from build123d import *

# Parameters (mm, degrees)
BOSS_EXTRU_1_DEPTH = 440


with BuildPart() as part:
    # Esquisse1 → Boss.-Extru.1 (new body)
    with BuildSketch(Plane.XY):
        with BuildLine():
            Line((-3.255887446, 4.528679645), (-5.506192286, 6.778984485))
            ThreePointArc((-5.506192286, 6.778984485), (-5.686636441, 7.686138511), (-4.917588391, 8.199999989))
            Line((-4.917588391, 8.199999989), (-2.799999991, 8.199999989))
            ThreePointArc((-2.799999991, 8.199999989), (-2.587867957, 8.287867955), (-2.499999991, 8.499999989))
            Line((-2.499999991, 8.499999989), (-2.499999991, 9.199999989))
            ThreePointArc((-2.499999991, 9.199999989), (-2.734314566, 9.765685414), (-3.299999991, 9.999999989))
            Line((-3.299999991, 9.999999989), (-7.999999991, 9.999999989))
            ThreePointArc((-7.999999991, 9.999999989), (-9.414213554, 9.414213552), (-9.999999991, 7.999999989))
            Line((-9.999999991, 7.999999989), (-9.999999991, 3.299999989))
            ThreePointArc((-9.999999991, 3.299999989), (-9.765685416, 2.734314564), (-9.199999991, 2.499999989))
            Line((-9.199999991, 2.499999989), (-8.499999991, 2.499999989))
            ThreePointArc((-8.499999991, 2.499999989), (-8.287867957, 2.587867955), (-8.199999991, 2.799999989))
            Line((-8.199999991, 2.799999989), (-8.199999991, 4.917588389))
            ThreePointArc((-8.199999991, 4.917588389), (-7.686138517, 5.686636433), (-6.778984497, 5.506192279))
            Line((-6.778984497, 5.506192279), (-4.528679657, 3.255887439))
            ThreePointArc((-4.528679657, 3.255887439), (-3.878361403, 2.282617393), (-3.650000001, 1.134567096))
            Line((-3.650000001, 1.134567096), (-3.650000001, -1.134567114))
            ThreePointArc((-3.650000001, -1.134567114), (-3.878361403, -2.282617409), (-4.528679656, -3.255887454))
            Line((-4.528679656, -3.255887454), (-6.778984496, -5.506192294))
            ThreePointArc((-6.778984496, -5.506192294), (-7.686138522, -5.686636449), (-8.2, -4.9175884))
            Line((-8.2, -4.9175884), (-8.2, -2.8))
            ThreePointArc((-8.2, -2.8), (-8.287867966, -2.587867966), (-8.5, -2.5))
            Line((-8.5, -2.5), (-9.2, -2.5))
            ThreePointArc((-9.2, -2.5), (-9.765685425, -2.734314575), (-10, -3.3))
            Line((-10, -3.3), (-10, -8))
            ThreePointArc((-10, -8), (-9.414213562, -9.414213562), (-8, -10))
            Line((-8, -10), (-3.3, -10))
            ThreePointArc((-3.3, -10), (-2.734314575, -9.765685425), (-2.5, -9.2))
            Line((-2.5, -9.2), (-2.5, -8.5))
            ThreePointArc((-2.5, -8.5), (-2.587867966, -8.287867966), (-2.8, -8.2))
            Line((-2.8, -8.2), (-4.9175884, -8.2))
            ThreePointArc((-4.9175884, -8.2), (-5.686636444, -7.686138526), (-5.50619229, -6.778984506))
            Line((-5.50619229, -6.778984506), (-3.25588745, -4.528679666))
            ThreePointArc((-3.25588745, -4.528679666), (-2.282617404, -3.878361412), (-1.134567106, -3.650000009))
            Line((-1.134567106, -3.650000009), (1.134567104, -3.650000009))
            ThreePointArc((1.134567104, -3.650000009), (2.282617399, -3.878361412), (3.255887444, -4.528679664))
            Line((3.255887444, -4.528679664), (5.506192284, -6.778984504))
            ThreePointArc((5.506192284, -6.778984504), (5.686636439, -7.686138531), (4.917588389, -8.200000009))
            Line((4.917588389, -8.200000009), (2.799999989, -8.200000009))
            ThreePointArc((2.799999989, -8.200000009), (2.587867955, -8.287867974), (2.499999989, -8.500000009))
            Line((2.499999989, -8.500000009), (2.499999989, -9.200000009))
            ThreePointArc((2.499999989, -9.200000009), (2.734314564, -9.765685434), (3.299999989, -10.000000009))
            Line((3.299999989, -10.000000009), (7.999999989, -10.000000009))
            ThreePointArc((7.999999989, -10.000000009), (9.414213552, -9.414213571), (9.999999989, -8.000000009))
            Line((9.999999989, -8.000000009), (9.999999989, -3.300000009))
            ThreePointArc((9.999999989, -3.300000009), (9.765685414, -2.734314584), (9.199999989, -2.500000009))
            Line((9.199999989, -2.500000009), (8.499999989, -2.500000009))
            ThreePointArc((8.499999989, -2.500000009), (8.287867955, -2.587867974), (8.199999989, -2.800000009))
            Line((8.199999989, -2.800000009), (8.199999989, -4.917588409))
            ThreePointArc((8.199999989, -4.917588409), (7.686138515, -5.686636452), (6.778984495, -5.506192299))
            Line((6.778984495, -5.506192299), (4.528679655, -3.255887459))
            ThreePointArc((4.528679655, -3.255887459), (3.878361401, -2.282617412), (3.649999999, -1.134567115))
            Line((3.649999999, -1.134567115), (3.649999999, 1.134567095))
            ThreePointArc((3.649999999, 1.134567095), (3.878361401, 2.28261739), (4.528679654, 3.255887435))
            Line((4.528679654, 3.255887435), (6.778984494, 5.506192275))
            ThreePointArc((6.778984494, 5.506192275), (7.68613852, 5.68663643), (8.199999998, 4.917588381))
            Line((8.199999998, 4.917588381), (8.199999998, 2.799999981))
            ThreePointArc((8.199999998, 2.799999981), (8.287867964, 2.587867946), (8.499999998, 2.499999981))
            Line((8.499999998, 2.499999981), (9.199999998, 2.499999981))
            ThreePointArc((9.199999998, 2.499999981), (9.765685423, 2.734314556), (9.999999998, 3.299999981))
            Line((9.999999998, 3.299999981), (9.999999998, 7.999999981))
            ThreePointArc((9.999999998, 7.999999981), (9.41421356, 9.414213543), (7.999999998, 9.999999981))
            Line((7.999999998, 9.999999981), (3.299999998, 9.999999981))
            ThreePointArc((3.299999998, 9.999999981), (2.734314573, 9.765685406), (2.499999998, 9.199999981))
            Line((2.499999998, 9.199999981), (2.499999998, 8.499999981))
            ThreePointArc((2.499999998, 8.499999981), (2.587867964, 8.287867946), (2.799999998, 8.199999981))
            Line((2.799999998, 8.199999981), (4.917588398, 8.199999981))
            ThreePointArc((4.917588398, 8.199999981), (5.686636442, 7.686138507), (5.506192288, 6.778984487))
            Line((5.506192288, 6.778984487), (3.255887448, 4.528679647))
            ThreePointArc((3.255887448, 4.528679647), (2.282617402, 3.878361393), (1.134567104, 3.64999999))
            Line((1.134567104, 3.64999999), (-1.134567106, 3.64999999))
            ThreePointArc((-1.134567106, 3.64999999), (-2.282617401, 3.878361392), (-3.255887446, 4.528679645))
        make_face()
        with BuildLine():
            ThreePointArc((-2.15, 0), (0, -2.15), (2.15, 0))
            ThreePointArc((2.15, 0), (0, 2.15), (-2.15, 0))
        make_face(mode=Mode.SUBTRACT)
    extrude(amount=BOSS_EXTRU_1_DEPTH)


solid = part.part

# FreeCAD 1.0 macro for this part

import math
import FreeCAD as App
import Part
import Sketcher

doc = App.newDocument("Part")
params = doc.addObject("Spreadsheet::Sheet", "Params")
for row, (alias, value) in enumerate([
    ("sketch1_radius", "2 mm"),
    ("sketch1_radius2", "3 mm"),
    ("sketch1_diameter", "4.3 mm"),
    ("sketch1_radius3", "0.3 mm"),
    ("sketch1_radius4", "0.8 mm"),
    ("pad1_length", "440 mm"),
], start=1):
    params.set(f"A{row}", alias)
    params.set(f"B{row}", "=" + value)
    params.setAlias(f"B{row}", alias)

body = doc.addObject("PartDesign::Body", "Body")

sketch1 = doc.addObject("Sketcher::SketchObject", "Sketch")
body.addObject(sketch1)
sketch1.AttachmentSupport = (doc.XY_Plane, [""])
sketch1.MapMode = "FlatFace"
sketch1.addGeometry([
    Part.LineSegment(App.Vector(-3.26, 4.53, 0), App.Vector(-5.51, 6.78, 0)),
    Part.ArcOfCircle(Part.Circle(App.Vector(-4.92, 7.37, 0), App.Vector(0, 0, 1), 0.83), math.radians(90), math.radians(225)),
    Part.LineSegment(App.Vector(-4.92, 8.2, 0), App.Vector(-2.8, 8.2, 0)),
    Part.ArcOfCircle(Part.Circle(App.Vector(-2.8, 8.5, 0), App.Vector(0, 0, 1), 0.3), math.radians(-90), math.radians(0)),
    Part.LineSegment(App.Vector(-2.5, 8.5, 0), App.Vector(-2.5, 9.2, 0)),
    Part.ArcOfCircle(Part.Circle(App.Vector(-3.3, 9.2, 0), App.Vector(0, 0, 1), 0.8), math.radians(0), math.radians(90)),
    Part.LineSegment(App.Vector(-3.3, 10, 0), App.Vector(-8, 10, 0)),
    Part.ArcOfCircle(Part.Circle(App.Vector(-8, 8, 0), App.Vector(0, 0, 1), 2), math.radians(90), math.radians(180)),
    Part.LineSegment(App.Vector(-10, 8, 0), App.Vector(-10, 3.3, 0)),
    Part.ArcOfCircle(Part.Circle(App.Vector(-9.2, 3.3, 0), App.Vector(0, 0, 1), 0.8), math.radians(180), math.radians(270)),
    Part.LineSegment(App.Vector(-9.2, 2.5, 0), App.Vector(-8.5, 2.5, 0)),
    Part.ArcOfCircle(Part.Circle(App.Vector(-8.5, 2.8, 0), App.Vector(0, 0, 1), 0.3), math.radians(-90), math.radians(0)),
    Part.LineSegment(App.Vector(-8.2, 2.8, 0), App.Vector(-8.2, 4.92, 0)),
    Part.ArcOfCircle(Part.Circle(App.Vector(-7.37, 4.92, 0), App.Vector(0, 0, 1), 0.83), math.radians(45), math.radians(180)),
    Part.LineSegment(App.Vector(-6.78, 5.51, 0), App.Vector(-4.53, 3.26, 0)),
    Part.ArcOfCircle(Part.Circle(App.Vector(-6.65, 1.13, 0), App.Vector(0, 0, 1), 3), math.radians(0), math.radians(45)),
    Part.LineSegment(App.Vector(-3.65, 1.13, 0), App.Vector(-3.65, -1.13, 0)),
    Part.ArcOfCircle(Part.Circle(App.Vector(-6.65, -1.13, 0), App.Vector(0, 0, 1), 3), math.radians(-45), math.radians(0)),
    Part.LineSegment(App.Vector(-4.53, -3.26, 0), App.Vector(-6.78, -5.51, 0)),
    Part.ArcOfCircle(Part.Circle(App.Vector(-7.37, -4.92, 0), App.Vector(0, 0, 1), 0.83), math.radians(180), math.radians(315)),
    Part.LineSegment(App.Vector(-8.2, -4.92, 0), App.Vector(-8.2, -2.8, 0)),
    Part.ArcOfCircle(Part.Circle(App.Vector(-8.5, -2.8, 0), App.Vector(0, 0, 1), 0.3), math.radians(0), math.radians(90)),
    Part.LineSegment(App.Vector(-8.5, -2.5, 0), App.Vector(-9.2, -2.5, 0)),
    Part.ArcOfCircle(Part.Circle(App.Vector(-9.2, -3.3, 0), App.Vector(0, 0, 1), 0.8), math.radians(90), math.radians(180)),
    Part.LineSegment(App.Vector(-10, -3.3, 0), App.Vector(-10, -8, 0)),
    Part.ArcOfCircle(Part.Circle(App.Vector(-8, -8, 0), App.Vector(0, 0, 1), 2), math.radians(-180), math.radians(-90)),
    Part.LineSegment(App.Vector(-8, -10, 0), App.Vector(-3.3, -10, 0)),
    Part.ArcOfCircle(Part.Circle(App.Vector(-3.3, -9.2, 0), App.Vector(0, 0, 1), 0.8), math.radians(-90), math.radians(0)),
    Part.LineSegment(App.Vector(-2.5, -9.2, 0), App.Vector(-2.5, -8.5, 0)),
    Part.ArcOfCircle(Part.Circle(App.Vector(-2.8, -8.5, 0), App.Vector(0, 0, 1), 0.3), math.radians(0), math.radians(90)),
    Part.LineSegment(App.Vector(-2.8, -8.2, 0), App.Vector(-4.92, -8.2, 0)),
    Part.ArcOfCircle(Part.Circle(App.Vector(-4.92, -7.37, 0), App.Vector(0, 0, 1), 0.83), math.radians(135), math.radians(270)),
    Part.LineSegment(App.Vector(-5.51, -6.78, 0), App.Vector(-3.26, -4.53, 0)),
    Part.ArcOfCircle(Part.Circle(App.Vector(-1.13, -6.65, 0), App.Vector(0, 0, 1), 3), math.radians(90), math.radians(135)),
    Part.LineSegment(App.Vector(-1.13, -3.65, 0), App.Vector(1.13, -3.65, 0)),
    Part.ArcOfCircle(Part.Circle(App.Vector(1.13, -6.65, 0), App.Vector(0, 0, 1), 3), math.radians(45), math.radians(90)),
    Part.LineSegment(App.Vector(3.26, -4.53, 0), App.Vector(5.51, -6.78, 0)),
    Part.ArcOfCircle(Part.Circle(App.Vector(4.92, -7.37, 0), App.Vector(0, 0, 1), 0.83), math.radians(-90), math.radians(45)),
    Part.LineSegment(App.Vector(4.92, -8.2, 0), App.Vector(2.8, -8.2, 0)),
    Part.ArcOfCircle(Part.Circle(App.Vector(2.8, -8.5, 0), App.Vector(0, 0, 1), 0.3), math.radians(90), math.radians(180)),
    Part.LineSegment(App.Vector(2.5, -8.5, 0), App.Vector(2.5, -9.2, 0)),
    Part.ArcOfCircle(Part.Circle(App.Vector(3.3, -9.2, 0), App.Vector(0, 0, 1), 0.8), math.radians(180), math.radians(270)),
    Part.LineSegment(App.Vector(3.3, -10, 0), App.Vector(8, -10, 0)),
    Part.ArcOfCircle(Part.Circle(App.Vector(8, -8, 0), App.Vector(0, 0, 1), 2), math.radians(-90), math.radians(0)),
    Part.LineSegment(App.Vector(10, -8, 0), App.Vector(10, -3.3, 0)),
    Part.ArcOfCircle(Part.Circle(App.Vector(9.2, -3.3, 0), App.Vector(0, 0, 1), 0.8), math.radians(0), math.radians(90)),
    Part.LineSegment(App.Vector(9.2, -2.5, 0), App.Vector(8.5, -2.5, 0)),
    Part.ArcOfCircle(Part.Circle(App.Vector(8.5, -2.8, 0), App.Vector(0, 0, 1), 0.3), math.radians(90), math.radians(180)),
    Part.LineSegment(App.Vector(8.2, -2.8, 0), App.Vector(8.2, -4.92, 0)),
    Part.ArcOfCircle(Part.Circle(App.Vector(7.37, -4.92, 0), App.Vector(0, 0, 1), 0.83), math.radians(-135), math.radians(0)),
    Part.LineSegment(App.Vector(6.78, -5.51, 0), App.Vector(4.53, -3.26, 0)),
    Part.ArcOfCircle(Part.Circle(App.Vector(6.65, -1.13, 0), App.Vector(0, 0, 1), 3), math.radians(180), math.radians(225)),
    Part.LineSegment(App.Vector(3.65, -1.13, 0), App.Vector(3.65, 1.13, 0)),
    Part.ArcOfCircle(Part.Circle(App.Vector(6.65, 1.13, 0), App.Vector(0, 0, 1), 3), math.radians(135), math.radians(180)),
    Part.LineSegment(App.Vector(4.53, 3.26, 0), App.Vector(6.78, 5.51, 0)),
    Part.ArcOfCircle(Part.Circle(App.Vector(7.37, 4.92, 0), App.Vector(0, 0, 1), 0.83), math.radians(0), math.radians(135)),
    Part.LineSegment(App.Vector(8.2, 4.92, 0), App.Vector(8.2, 2.8, 0)),
    Part.ArcOfCircle(Part.Circle(App.Vector(8.5, 2.8, 0), App.Vector(0, 0, 1), 0.3), math.radians(180), math.radians(270)),
    Part.LineSegment(App.Vector(8.5, 2.5, 0), App.Vector(9.2, 2.5, 0)),
    Part.ArcOfCircle(Part.Circle(App.Vector(9.2, 3.3, 0), App.Vector(0, 0, 1), 0.8), math.radians(-90), math.radians(0)),
    Part.LineSegment(App.Vector(10, 3.3, 0), App.Vector(10, 8, 0)),
    Part.ArcOfCircle(Part.Circle(App.Vector(8, 8, 0), App.Vector(0, 0, 1), 2), math.radians(0), math.radians(90)),
    Part.LineSegment(App.Vector(8, 10, 0), App.Vector(3.3, 10, 0)),
    Part.ArcOfCircle(Part.Circle(App.Vector(3.3, 9.2, 0), App.Vector(0, 0, 1), 0.8), math.radians(90), math.radians(180)),
    Part.LineSegment(App.Vector(2.5, 9.2, 0), App.Vector(2.5, 8.5, 0)),
    Part.ArcOfCircle(Part.Circle(App.Vector(2.8, 8.5, 0), App.Vector(0, 0, 1), 0.3), math.radians(180), math.radians(270)),
    Part.LineSegment(App.Vector(2.8, 8.2, 0), App.Vector(4.92, 8.2, 0)),
    Part.ArcOfCircle(Part.Circle(App.Vector(4.92, 7.37, 0), App.Vector(0, 0, 1), 0.83), math.radians(-45), math.radians(90)),
    Part.LineSegment(App.Vector(5.51, 6.78, 0), App.Vector(3.26, 4.53, 0)),
    Part.ArcOfCircle(Part.Circle(App.Vector(1.13, 6.65, 0), App.Vector(0, 0, 1), 3), math.radians(-90), math.radians(-45)),
    Part.LineSegment(App.Vector(1.13, 3.65, 0), App.Vector(-1.13, 3.65, 0)),
    Part.ArcOfCircle(Part.Circle(App.Vector(-1.13, 6.65, 0), App.Vector(0, 0, 1), 3), math.radians(-135), math.radians(-90)),
    Part.Circle(App.Vector(0, 0, 0), App.Vector(0, 0, 1), 2.15),
], False)
sketch1.addConstraint([
    Sketcher.Constraint("Tangent", 0, 2, 1, 2),
    Sketcher.Constraint("Tangent", 1, 1, 2, 1),
    Sketcher.Constraint("Tangent", 2, 2, 3, 1),
    Sketcher.Constraint("Tangent", 3, 2, 4, 1),
    Sketcher.Constraint("Tangent", 4, 2, 5, 1),
    Sketcher.Constraint("Tangent", 5, 2, 6, 1),
    Sketcher.Constraint("Tangent", 6, 2, 7, 1),
    Sketcher.Constraint("Tangent", 7, 2, 8, 1),
    Sketcher.Constraint("Tangent", 8, 2, 9, 1),
    Sketcher.Constraint("Tangent", 9, 2, 10, 1),
    Sketcher.Constraint("Tangent", 10, 2, 11, 1),
    Sketcher.Constraint("Tangent", 11, 2, 12, 1),
    Sketcher.Constraint("Tangent", 12, 2, 13, 2),
    Sketcher.Constraint("Tangent", 13, 1, 14, 1),
    Sketcher.Constraint("Tangent", 14, 2, 15, 2),
    Sketcher.Constraint("Tangent", 15, 1, 16, 1),
    Sketcher.Constraint("Tangent", 16, 2, 17, 2),
    Sketcher.Constraint("Tangent", 17, 1, 18, 1),
    Sketcher.Constraint("Tangent", 18, 2, 19, 2),
    Sketcher.Constraint("Tangent", 19, 1, 20, 1),
    Sketcher.Constraint("Tangent", 20, 2, 21, 1),
    Sketcher.Constraint("Tangent", 21, 2, 22, 1),
    Sketcher.Constraint("Tangent", 22, 2, 23, 1),
    Sketcher.Constraint("Tangent", 23, 2, 24, 1),
    Sketcher.Constraint("Tangent", 24, 2, 25, 1),
    Sketcher.Constraint("Tangent", 25, 2, 26, 1),
    Sketcher.Constraint("Tangent", 26, 2, 27, 1),
    Sketcher.Constraint("Tangent", 27, 2, 28, 1),
    Sketcher.Constraint("Tangent", 28, 2, 29, 1),
    Sketcher.Constraint("Tangent", 29, 2, 30, 1),
    Sketcher.Constraint("Tangent", 30, 2, 31, 2),
    Sketcher.Constraint("Tangent", 31, 1, 32, 1),
    Sketcher.Constraint("Tangent", 32, 2, 33, 2),
    Sketcher.Constraint("Tangent", 33, 1, 34, 1),
    Sketcher.Constraint("Tangent", 34, 2, 35, 2),
    Sketcher.Constraint("Tangent", 35, 1, 36, 1),
    Sketcher.Constraint("Tangent", 36, 2, 37, 2),
    Sketcher.Constraint("Tangent", 37, 1, 38, 1),
    Sketcher.Constraint("Tangent", 38, 2, 39, 1),
    Sketcher.Constraint("Tangent", 39, 2, 40, 1),
    Sketcher.Constraint("Tangent", 40, 2, 41, 1),
    Sketcher.Constraint("Tangent", 41, 2, 42, 1),
    Sketcher.Constraint("Tangent", 42, 2, 43, 1),
    Sketcher.Constraint("Tangent", 43, 2, 44, 1),
    Sketcher.Constraint("Tangent", 44, 2, 45, 1),
    Sketcher.Constraint("Tangent", 45, 2, 46, 1),
    Sketcher.Constraint("Tangent", 46, 2, 47, 1),
    Sketcher.Constraint("Tangent", 47, 2, 48, 1),
    Sketcher.Constraint("Tangent", 48, 2, 49, 2),
    Sketcher.Constraint("Tangent", 49, 1, 50, 1),
    Sketcher.Constraint("Tangent", 50, 2, 51, 2),
    Sketcher.Constraint("Tangent", 51, 1, 52, 1),
    Sketcher.Constraint("Tangent", 52, 2, 53, 2),
    Sketcher.Constraint("Tangent", 53, 1, 54, 1),
    Sketcher.Constraint("Tangent", 54, 2, 55, 2),
    Sketcher.Constraint("Tangent", 55, 1, 56, 1),
    Sketcher.Constraint("Tangent", 56, 2, 57, 1),
    Sketcher.Constraint("Tangent", 57, 2, 58, 1),
    Sketcher.Constraint("Tangent", 58, 2, 59, 1),
    Sketcher.Constraint("Tangent", 59, 2, 60, 1),
    Sketcher.Constraint("Tangent", 60, 2, 61, 1),
    Sketcher.Constraint("Tangent", 61, 2, 62, 1),
    Sketcher.Constraint("Tangent", 62, 2, 63, 1),
    Sketcher.Constraint("Tangent", 63, 2, 64, 1),
    Sketcher.Constraint("Tangent", 64, 2, 65, 1),
    Sketcher.Constraint("Tangent", 65, 2, 66, 1),
    Sketcher.Constraint("Tangent", 66, 2, 67, 2),
    Sketcher.Constraint("Tangent", 67, 1, 68, 1),
    Sketcher.Constraint("Tangent", 68, 2, 69, 2),
    Sketcher.Constraint("Tangent", 69, 1, 70, 1),
    Sketcher.Constraint("Tangent", 70, 2, 71, 2),
    Sketcher.Constraint("Tangent", 71, 1, 0, 1),
    Sketcher.Constraint("Horizontal", 2),
    Sketcher.Constraint("Vertical", 4),
    Sketcher.Constraint("Horizontal", 6),
    Sketcher.Constraint("Vertical", 8),
    Sketcher.Constraint("Horizontal", 10),
    Sketcher.Constraint("Vertical", 12),
    Sketcher.Constraint("Vertical", 16),
    Sketcher.Constraint("Vertical", 20),
    Sketcher.Constraint("Horizontal", 22),
    Sketcher.Constraint("Vertical", 24),
    Sketcher.Constraint("Horizontal", 26),
    Sketcher.Constraint("Vertical", 28),
    Sketcher.Constraint("Horizontal", 30),
    Sketcher.Constraint("Horizontal", 34),
    Sketcher.Constraint("Horizontal", 38),
    Sketcher.Constraint("Vertical", 40),
    Sketcher.Constraint("Horizontal", 42),
    Sketcher.Constraint("Vertical", 44),
    Sketcher.Constraint("Horizontal", 46),
    Sketcher.Constraint("Vertical", 48),
    Sketcher.Constraint("Vertical", 52),
    Sketcher.Constraint("Vertical", 56),
    Sketcher.Constraint("Horizontal", 58),
    Sketcher.Constraint("Vertical", 60),
    Sketcher.Constraint("Horizontal", 62),
    Sketcher.Constraint("Vertical", 64),
    Sketcher.Constraint("Horizontal", 66),
    Sketcher.Constraint("Horizontal", 70),
    Sketcher.Constraint("Coincident", 72, 3, -1, 1),
    Sketcher.Constraint("Equal", 5, 9),
    Sketcher.Constraint("Equal", 3, 11),
    Sketcher.Constraint("Equal", 1, 13),
    Sketcher.Constraint("Equal", 15, 17),
    Sketcher.Constraint("Equal", 13, 19),
    Sketcher.Constraint("Equal", 11, 21),
    Sketcher.Constraint("Equal", 9, 23),
    Sketcher.Constraint("Equal", 7, 25),
    Sketcher.Constraint("Equal", 23, 27),
    Sketcher.Constraint("Equal", 21, 29),
    Sketcher.Constraint("Equal", 19, 31),
    Sketcher.Constraint("Equal", 17, 33),
    Sketcher.Constraint("Equal", 33, 35),
    Sketcher.Constraint("Equal", 31, 37),
    Sketcher.Constraint("Equal", 29, 39),
    Sketcher.Constraint("Equal", 27, 41),
    Sketcher.Constraint("Equal", 25, 43),
    Sketcher.Constraint("Equal", 41, 45),
    Sketcher.Constraint("Equal", 39, 47),
    Sketcher.Constraint("Equal", 37, 49),
    Sketcher.Constraint("Equal", 35, 51),
    Sketcher.Constraint("Equal", 51, 53),
    Sketcher.Constraint("Equal", 49, 55),
    Sketcher.Constraint("Equal", 47, 57),
    Sketcher.Constraint("Equal", 45, 59),
    Sketcher.Constraint("Equal", 43, 61),
    Sketcher.Constraint("Equal", 59, 63),
    Sketcher.Constraint("Equal", 57, 65),
    Sketcher.Constraint("Equal", 55, 67),
    Sketcher.Constraint("Equal", 53, 69),
    Sketcher.Constraint("Equal", 69, 71),
    Sketcher.Constraint("Symmetric", 1, 3, 37, 3, -1, 1),
    Sketcher.Constraint("Symmetric", 5, 3, 41, 3, -1, 1),
    Sketcher.Constraint("Symmetric", 9, 3, 45, 3, -1, 1),
    Sketcher.Constraint("Symmetric", 13, 3, 49, 3, -1, 1),
    Sketcher.Constraint("Symmetric", 15, 3, 51, 3, -1, 1),
    Sketcher.Constraint("Symmetric", 19, 3, 55, 3, -1, 1),
    Sketcher.Constraint("Symmetric", 23, 3, 59, 3, -1, 1),
    Sketcher.Constraint("Symmetric", 27, 3, 63, 3, -1, 1),
    Sketcher.Constraint("Symmetric", 31, 3, 67, 3, -1, 1),
    Sketcher.Constraint("Symmetric", 33, 3, 69, 3, -1, 1),
    Sketcher.Constraint("Symmetric", 31, 3, 37, 3, -2),
    Sketcher.Constraint("Symmetric", 27, 3, 41, 3, -2),
    Sketcher.Constraint("Symmetric", 23, 3, 45, 3, -2),
    Sketcher.Constraint("Symmetric", 19, 3, 49, 3, -2),
    Sketcher.Constraint("Parallel", 0, 14),
    Sketcher.Constraint("Perpendicular", 14, 18),
    Sketcher.Constraint("Parallel", 18, 32),
    Sketcher.Constraint("Perpendicular", 32, 36),
    Sketcher.Constraint("Perpendicular", 50, 54),
    Sketcher.Constraint("Horizontal", 17, 3, 51, 3),
    Sketcher.Constraint("Equal", 58, 4),
    Sketcher.Constraint("Equal", 62, 8),
    Sketcher.Constraint("Equal", 66, 12),
    Sketcher.Constraint("Equal", 70, 16),
    Sketcher.Constraint("Equal", 0, 14),
    Sketcher.Constraint("Radius", 7, 2.0),
    Sketcher.Constraint("Radius", 15, 3.0),
    Sketcher.Constraint("Diameter", 72, 4.3),
    Sketcher.Constraint("Radius", 3, 0.3),
    Sketcher.Constraint("Radius", 5, 0.8),
    Sketcher.Constraint("DistanceX", 6, 2, 6, 1, 4.7),
    Sketcher.Constraint("DistanceX", 10, 1, 10, 2, 0.7),
    Sketcher.Constraint("DistanceX", 7, 3, -1, 1, 8.0),
    Sketcher.Constraint("DistanceX", 15, 3, -1, 1, 6.65),
    Sketcher.Constraint("Radius", 1, 0.832412),
    Sketcher.Constraint("DistanceX", 2, 1, 2, 2, 2.117588),
])
sketch1.setExpression("Constraints[157]", "Params.sketch1_radius")
sketch1.setExpression("Constraints[158]", "Params.sketch1_radius2")
sketch1.setExpression("Constraints[159]", "Params.sketch1_diameter")
sketch1.setExpression("Constraints[160]", "Params.sketch1_radius3")
sketch1.setExpression("Constraints[161]", "Params.sketch1_radius4")
pad1 = doc.addObject("PartDesign::Pad", "Pad")
body.addObject(pad1)
pad1.Profile = sketch1
pad1.setExpression("Length", "Params.pad1_length")

doc.recompute()
